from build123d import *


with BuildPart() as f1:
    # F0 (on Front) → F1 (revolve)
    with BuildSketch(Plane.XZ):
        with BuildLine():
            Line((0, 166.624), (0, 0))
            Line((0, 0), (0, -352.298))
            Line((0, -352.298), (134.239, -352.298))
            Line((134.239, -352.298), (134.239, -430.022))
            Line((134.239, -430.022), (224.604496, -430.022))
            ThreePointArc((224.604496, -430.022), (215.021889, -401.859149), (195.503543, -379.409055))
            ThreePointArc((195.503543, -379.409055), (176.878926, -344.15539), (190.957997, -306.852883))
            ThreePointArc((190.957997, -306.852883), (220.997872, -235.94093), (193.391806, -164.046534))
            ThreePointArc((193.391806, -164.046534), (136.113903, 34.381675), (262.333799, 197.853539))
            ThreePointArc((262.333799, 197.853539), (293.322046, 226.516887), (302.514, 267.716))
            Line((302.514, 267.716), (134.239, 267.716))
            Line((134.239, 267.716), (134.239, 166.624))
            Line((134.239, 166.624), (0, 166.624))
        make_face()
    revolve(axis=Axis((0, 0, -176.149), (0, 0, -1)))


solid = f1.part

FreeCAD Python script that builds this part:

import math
import FreeCAD as App
import Part
import Sketcher
from FreeCAD import Vector
Q = App.Units.Quantity

doc = App.newDocument("Part")
body = doc.addObject("PartDesign::Body", "Body")

# Sketch on XZ plane
sketch1 = body.newObject("Sketcher::SketchObject", "Sketch")
sketch1.AttachmentSupport = (doc.getObject("XZ_Plane"), [""])
sketch1.MapMode = "FlatFace"
sketch1.addGeometry([
    Part.LineSegment(Vector(0, 166.624, 0), Vector(0, -352.298, 0)),  # 0
    Part.LineSegment(Vector(0, -352.298, 0), Vector(134.239, -352.298, 0)),  # 1
    Part.LineSegment(Vector(134.239, -352.298, 0), Vector(134.239, -430.022, 0)),  # 2
    Part.LineSegment(Vector(134.239, -430.022, 0), Vector(224.604496, -430.022, 0)),  # 3
    Part.ArcOfCircle(Part.Circle(Vector(148.081998, -440.347615, 0), Vector(0, 0, 1), 77.216003), math.radians(7.684828), math.radians(52.110439)),  # 4
    Part.ArcOfCircle(Part.Circle(Vector(225.298001, -341.122, 0), Vector(0, 0, 1), 48.514001), math.radians(135.059198), math.radians(232.110438)),  # 5
    Part.ArcOfCircle(Part.Circle(Vector(118.142808, -234.188, 0), Vector(0, 0, 1), 102.87), math.radians(-44.940804), math.radians(42.98804)),  # 6
    Part.ArcOfCircle(Part.Circle(Vector(360.426001, -8.349797, 0), Vector(0, 0, 1), 228.346001), math.radians(115.440722), math.radians(222.988041)),  # 7
    Part.ArcOfCircle(Part.Circle(Vector(231.891395, 261.847676, 0), Vector(0, 0, 1), 70.865998), math.radians(-64.55928), math.radians(4.75003)),  # 8
    Part.LineSegment(Vector(302.514, 267.716, 0), Vector(134.239, 267.716, 0)),  # 9
    Part.LineSegment(Vector(134.239, 267.716, 0), Vector(134.239, 166.624, 0)),  # 10
    Part.LineSegment(Vector(134.239, 166.624, 0), Vector(0, 166.624, 0)),  # 11
], False)
sketch1.addConstraint([
    Sketcher.Constraint("Coincident", 0, 2, 1, 1),
    Sketcher.Constraint("Coincident", 1, 2, 2, 1),
    Sketcher.Constraint("Coincident", 2, 2, 3, 1),
    Sketcher.Constraint("Coincident", 3, 2, 4, 1),
    Sketcher.Constraint("Tangent", 4, 2, 5, 2),
    Sketcher.Constraint("Tangent", 5, 1, 6, 1),
    Sketcher.Constraint("Tangent", 6, 2, 7, 2),
    Sketcher.Constraint("Tangent", 7, 1, 8, 1),
    Sketcher.Constraint("Coincident", 8, 2, 9, 1),
    Sketcher.Constraint("Coincident", 9, 2, 10, 1),
    Sketcher.Constraint("Coincident", 10, 2, 11, 1),
    Sketcher.Constraint("Coincident", 11, 2, 0, 1),
    Sketcher.Constraint("Vertical", 0),
    Sketcher.Constraint("Horizontal", 1),
    Sketcher.Constraint("Vertical", 2),
    Sketcher.Constraint("Horizontal", 3),
    Sketcher.Constraint("Horizontal", 9),
    Sketcher.Constraint("Vertical", 10),
    Sketcher.Constraint("Horizontal", 11),
    Sketcher.Constraint("PointOnObject", 0, 2, -2),
    Sketcher.Constraint("Vertical", 2, 2, 9, 2),
    Sketcher.Constraint("Radius", 4, Q("3.0400001 in")),
    Sketcher.Constraint("Radius", 5, Q("1.91 in")),
    Sketcher.Constraint("Radius", 6, Q("4.05 in")),
    Sketcher.Constraint("Radius", 7, Q("8.99 in")),
    Sketcher.Constraint("Radius", 8, Q("2.7899999 in")),
    Sketcher.Constraint("DistanceY", 0, 2, 0, 1, Q("20.43 in")),
    Sketcher.Constraint("DistanceY", 2, 2, 2, 1, Q("3.06 in")),
    Sketcher.Constraint("DistanceY", 10, 2, 10, 1, Q("3.98 in")),
    Sketcher.Constraint("DistanceY", 2, 2, 5, 3, Q("3.5 in")),
    Sketcher.Constraint("DistanceX", 1, 1, 1, 2, Q("5.285 in")),
    Sketcher.Constraint("DistanceX", 9, 2, 9, 1, Q("6.625 in")),
    Sketcher.Constraint("DistanceX", -1, 1, 4, 3, Q("5.8299999 in")),
    Sketcher.Constraint("DistanceX", -1, 1, 5, 3, Q("8.87 in")),
    Sketcher.Constraint("DistanceY", 5, 3, -1, 1, Q("13.43 in")),
    Sketcher.Constraint("DistanceY", 6, 3, -1, 1, Q("9.22 in")),
    Sketcher.Constraint("DistanceX", -1, 1, 7, 3, Q("14.19 in")),
])
revolution = body.newObject("PartDesign::Revolution", "Revolution")
revolution.Profile = sketch1
revolution.ReferenceAxis = (sketch1, ["V_Axis"])
revolution.Angle = 360

doc.recompute()
